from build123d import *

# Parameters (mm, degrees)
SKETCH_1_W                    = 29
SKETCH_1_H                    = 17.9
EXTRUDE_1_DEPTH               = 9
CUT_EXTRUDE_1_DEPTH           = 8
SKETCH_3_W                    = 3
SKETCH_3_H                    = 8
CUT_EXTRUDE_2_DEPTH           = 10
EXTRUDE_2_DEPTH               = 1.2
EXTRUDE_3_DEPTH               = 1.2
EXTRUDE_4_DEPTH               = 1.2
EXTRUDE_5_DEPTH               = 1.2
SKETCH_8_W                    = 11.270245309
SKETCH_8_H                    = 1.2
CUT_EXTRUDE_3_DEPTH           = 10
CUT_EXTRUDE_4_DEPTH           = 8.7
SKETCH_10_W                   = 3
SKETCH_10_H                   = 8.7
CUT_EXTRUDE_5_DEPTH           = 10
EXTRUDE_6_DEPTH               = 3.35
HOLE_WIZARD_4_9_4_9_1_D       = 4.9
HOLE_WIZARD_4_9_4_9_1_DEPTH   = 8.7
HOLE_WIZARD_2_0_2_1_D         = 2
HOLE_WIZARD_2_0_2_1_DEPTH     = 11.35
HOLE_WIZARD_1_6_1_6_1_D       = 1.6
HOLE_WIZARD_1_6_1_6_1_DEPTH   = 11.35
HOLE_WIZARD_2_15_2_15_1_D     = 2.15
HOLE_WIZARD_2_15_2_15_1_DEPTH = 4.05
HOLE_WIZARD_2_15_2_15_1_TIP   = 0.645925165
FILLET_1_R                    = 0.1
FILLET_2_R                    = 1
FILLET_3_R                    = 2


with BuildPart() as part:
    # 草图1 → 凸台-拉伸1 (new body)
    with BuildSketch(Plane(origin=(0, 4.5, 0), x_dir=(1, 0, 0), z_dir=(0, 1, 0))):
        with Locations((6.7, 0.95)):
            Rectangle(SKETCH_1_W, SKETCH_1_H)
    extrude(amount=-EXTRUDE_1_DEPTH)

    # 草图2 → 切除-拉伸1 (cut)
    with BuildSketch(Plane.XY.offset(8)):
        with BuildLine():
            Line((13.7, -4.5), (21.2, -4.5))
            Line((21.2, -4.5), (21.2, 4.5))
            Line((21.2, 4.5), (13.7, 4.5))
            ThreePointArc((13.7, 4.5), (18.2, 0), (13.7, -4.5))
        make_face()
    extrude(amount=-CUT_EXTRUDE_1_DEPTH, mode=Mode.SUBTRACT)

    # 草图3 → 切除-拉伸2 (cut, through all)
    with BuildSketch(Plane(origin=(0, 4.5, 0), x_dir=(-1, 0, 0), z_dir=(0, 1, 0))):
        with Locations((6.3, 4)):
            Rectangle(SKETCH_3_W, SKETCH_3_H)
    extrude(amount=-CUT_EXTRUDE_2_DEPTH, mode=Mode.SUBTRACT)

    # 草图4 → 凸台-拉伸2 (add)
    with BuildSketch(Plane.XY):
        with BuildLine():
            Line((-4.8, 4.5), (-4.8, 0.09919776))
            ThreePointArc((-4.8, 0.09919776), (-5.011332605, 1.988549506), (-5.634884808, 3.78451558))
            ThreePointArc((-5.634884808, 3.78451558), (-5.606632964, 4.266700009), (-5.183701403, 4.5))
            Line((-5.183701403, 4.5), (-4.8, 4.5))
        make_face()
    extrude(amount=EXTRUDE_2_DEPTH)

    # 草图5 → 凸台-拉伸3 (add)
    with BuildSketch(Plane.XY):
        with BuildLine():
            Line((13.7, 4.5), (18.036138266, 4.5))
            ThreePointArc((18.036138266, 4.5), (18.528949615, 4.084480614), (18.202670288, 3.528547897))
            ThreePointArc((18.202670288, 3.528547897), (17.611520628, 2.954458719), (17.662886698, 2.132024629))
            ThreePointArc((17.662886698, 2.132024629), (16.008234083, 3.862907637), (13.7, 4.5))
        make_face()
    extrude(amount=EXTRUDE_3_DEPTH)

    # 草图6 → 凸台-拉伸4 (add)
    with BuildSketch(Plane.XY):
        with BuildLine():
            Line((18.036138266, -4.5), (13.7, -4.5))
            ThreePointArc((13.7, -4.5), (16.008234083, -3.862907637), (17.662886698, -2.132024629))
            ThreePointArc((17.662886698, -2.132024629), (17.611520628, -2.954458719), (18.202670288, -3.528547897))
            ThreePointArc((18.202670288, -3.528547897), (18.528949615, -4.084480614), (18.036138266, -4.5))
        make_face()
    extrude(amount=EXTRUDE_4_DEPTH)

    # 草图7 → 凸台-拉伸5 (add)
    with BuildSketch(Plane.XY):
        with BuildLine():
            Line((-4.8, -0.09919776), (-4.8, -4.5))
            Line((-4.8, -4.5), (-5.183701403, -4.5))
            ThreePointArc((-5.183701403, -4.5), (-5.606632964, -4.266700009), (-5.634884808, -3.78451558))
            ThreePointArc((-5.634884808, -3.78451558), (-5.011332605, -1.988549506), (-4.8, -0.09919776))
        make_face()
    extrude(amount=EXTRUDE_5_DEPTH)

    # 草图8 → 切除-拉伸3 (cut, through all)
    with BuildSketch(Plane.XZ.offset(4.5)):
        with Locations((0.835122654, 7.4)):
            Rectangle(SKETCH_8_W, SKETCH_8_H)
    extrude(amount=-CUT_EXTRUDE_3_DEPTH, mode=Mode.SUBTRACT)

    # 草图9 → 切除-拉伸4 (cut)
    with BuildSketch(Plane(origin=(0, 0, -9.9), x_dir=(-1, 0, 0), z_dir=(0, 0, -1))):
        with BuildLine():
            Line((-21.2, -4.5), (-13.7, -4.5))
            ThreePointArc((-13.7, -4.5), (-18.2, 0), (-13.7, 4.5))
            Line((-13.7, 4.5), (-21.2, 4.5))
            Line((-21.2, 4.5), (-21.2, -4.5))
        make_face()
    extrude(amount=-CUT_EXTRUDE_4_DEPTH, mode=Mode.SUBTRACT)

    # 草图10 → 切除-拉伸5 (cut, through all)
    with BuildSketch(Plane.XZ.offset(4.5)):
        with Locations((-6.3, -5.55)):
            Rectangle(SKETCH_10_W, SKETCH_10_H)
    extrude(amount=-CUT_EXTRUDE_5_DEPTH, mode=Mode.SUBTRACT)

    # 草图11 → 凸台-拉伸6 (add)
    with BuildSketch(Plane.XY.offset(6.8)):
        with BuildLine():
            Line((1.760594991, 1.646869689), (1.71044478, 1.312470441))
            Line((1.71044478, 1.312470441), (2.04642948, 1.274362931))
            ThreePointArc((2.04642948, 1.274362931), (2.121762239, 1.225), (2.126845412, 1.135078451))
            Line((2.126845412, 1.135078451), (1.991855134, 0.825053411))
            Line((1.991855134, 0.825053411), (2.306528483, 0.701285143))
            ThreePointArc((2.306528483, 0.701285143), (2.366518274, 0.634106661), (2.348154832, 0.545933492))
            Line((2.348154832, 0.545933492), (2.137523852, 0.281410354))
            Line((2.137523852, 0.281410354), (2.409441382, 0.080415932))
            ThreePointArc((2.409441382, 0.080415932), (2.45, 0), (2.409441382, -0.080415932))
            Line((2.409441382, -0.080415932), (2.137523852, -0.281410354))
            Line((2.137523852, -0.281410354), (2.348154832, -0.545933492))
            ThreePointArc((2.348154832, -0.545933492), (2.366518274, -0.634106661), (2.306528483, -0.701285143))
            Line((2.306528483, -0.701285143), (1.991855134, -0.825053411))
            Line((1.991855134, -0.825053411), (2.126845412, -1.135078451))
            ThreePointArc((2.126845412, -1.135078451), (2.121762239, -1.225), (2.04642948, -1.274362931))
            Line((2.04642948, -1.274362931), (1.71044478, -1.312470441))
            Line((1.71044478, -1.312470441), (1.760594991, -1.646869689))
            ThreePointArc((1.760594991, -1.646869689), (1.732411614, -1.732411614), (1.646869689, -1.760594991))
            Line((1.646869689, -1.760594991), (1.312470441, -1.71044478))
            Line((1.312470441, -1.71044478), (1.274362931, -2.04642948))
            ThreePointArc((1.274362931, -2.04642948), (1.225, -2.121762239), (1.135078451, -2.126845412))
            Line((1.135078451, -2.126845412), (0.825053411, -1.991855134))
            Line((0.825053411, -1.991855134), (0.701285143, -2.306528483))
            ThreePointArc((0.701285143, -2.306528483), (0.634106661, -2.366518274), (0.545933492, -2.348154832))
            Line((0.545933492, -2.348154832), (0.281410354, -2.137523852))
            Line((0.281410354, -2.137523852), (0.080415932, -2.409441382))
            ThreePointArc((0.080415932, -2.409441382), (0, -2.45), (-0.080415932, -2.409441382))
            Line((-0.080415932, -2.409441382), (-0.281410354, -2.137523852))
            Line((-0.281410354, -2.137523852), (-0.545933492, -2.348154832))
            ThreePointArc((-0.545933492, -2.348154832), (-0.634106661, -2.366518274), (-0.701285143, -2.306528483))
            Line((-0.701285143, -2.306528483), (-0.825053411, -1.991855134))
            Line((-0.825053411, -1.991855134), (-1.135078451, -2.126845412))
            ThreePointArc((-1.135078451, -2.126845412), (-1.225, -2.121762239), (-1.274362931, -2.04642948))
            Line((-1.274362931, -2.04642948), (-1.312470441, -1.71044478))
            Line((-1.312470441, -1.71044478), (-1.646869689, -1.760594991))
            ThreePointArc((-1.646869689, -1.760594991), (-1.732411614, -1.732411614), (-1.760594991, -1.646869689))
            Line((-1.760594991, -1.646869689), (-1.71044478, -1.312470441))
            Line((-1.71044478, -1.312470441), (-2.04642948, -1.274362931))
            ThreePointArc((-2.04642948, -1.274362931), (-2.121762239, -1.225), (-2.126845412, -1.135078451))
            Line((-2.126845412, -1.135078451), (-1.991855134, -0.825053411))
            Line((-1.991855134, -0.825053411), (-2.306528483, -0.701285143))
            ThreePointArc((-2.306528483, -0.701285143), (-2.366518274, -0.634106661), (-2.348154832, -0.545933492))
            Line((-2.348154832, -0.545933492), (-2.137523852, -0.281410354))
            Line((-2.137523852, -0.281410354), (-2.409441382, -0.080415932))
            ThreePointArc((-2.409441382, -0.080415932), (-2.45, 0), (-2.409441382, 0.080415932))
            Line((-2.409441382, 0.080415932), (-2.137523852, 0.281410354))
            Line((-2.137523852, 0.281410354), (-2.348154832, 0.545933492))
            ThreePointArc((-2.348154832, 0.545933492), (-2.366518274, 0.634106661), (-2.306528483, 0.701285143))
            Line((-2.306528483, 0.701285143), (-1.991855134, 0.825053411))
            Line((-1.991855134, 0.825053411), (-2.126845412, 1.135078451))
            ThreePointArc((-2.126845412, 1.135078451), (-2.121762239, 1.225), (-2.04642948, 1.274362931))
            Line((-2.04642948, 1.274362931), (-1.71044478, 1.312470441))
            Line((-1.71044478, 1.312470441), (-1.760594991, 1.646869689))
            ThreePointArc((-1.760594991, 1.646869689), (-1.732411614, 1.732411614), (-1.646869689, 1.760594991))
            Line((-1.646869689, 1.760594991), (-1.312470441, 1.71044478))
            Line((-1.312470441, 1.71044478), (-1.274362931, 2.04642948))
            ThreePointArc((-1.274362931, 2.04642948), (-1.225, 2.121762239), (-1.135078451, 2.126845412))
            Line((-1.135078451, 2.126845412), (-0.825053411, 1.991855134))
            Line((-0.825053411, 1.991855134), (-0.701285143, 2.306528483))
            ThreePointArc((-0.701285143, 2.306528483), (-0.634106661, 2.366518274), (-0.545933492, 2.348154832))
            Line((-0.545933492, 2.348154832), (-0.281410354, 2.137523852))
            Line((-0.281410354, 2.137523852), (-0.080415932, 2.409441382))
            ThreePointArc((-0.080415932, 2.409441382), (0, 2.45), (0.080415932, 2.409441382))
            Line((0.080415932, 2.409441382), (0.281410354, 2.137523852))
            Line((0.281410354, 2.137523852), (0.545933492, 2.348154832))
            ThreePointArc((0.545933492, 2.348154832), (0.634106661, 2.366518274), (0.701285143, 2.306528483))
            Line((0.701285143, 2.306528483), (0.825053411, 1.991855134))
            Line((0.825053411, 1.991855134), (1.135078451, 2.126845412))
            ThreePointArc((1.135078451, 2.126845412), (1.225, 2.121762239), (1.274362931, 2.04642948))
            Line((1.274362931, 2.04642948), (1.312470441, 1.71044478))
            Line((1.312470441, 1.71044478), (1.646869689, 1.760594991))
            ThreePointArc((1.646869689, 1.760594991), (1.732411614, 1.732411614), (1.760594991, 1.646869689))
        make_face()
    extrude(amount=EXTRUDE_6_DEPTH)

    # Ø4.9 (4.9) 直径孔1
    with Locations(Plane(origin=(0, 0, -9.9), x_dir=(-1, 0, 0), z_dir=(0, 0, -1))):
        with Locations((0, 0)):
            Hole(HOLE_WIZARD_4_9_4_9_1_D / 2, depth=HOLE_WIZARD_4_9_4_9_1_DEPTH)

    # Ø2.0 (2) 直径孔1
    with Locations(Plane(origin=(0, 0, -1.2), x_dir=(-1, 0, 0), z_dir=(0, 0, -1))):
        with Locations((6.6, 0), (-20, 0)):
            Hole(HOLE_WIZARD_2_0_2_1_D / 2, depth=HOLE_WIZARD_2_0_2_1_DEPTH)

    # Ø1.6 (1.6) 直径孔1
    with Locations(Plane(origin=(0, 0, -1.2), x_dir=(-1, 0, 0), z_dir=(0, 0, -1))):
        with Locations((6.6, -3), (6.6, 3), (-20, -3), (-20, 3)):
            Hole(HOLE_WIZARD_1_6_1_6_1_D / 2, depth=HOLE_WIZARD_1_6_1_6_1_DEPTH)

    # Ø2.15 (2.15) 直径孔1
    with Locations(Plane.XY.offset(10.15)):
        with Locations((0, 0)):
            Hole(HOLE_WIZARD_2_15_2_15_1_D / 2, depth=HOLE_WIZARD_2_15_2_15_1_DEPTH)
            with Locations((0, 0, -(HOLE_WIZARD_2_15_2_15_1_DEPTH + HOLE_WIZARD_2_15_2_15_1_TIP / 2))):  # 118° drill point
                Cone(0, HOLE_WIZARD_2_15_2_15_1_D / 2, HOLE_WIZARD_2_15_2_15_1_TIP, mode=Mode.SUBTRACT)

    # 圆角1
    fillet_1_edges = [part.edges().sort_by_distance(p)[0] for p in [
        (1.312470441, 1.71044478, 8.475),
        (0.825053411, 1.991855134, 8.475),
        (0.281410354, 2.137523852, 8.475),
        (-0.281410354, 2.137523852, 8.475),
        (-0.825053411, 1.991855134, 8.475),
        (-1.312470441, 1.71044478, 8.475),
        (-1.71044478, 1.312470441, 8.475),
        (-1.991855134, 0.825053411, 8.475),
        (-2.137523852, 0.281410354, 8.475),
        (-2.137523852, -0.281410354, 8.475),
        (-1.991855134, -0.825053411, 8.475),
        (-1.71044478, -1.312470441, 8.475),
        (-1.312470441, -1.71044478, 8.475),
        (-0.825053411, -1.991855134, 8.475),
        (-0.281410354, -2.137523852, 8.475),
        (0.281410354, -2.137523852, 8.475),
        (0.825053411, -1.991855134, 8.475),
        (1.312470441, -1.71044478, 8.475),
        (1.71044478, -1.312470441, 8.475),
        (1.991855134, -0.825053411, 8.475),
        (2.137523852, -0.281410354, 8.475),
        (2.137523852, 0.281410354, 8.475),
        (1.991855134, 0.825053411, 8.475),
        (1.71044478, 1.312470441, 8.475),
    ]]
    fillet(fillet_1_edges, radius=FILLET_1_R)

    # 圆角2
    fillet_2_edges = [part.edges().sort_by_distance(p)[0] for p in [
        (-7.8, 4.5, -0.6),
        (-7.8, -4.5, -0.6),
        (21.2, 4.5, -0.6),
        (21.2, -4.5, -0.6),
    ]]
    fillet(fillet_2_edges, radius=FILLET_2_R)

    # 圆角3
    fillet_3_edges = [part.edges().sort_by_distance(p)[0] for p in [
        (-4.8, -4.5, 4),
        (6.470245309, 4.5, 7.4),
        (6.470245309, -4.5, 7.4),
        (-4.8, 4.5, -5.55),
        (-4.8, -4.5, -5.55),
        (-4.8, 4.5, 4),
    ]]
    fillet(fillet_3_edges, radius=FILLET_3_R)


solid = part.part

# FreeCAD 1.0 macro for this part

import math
import FreeCAD as App
import Part
import Sketcher

V = App.Vector
Q = App.Units.Quantity


def edges_at(feature, points):
    """Names of the edges that pass closest to the given points."""
    edges = feature.Shape.Edges
    near = lambda p: min(range(len(edges)), key=lambda i: edges[i].distToShape(Part.Vertex(*p))[0])
    return sorted({f"Edge{near(p) + 1}" for p in points})


def add_polygon(sketch, points):
    """Adds a closed chain of lines whose ends are joined by coincident constraints."""
    first, n = sketch.GeometryCount, len(points)
    for a, b in zip(points, points[1:] + points[:1]):
        sketch.addGeometry(Part.LineSegment(App.Vector(*a, 0), App.Vector(*b, 0)), False)
    for i in range(n):
        sketch.addConstraint(Sketcher.Constraint("Coincident", first + i, 2, first + (i + 1) % n, 1))

doc = App.newDocument("Part")
body = doc.addObject("PartDesign::Body", "Body")

# Sketch on XZ plane
sketch1 = body.newObject("Sketcher::SketchObject", "Sketch")
sketch1.AttachmentSupport = (doc.getObject("XZ_Plane"), [""])
sketch1.MapMode = "FlatFace"
sketch1.AttachmentOffset = App.Placement(V(0, 0, -4.5), App.Rotation())
add_polygon(sketch1, [(-8, -10), (-8, 8), (21, 8), (21, -10)])  # lines 0-3
sketch1.addConstraint([
    Sketcher.Constraint("Vertical", 0),
    Sketcher.Constraint("Horizontal", 1),
    Sketcher.Constraint("Vertical", 2),
    Sketcher.Constraint("Horizontal", 3),
    Sketcher.Constraint("DistanceX", 1, 1, 1, 2, Q("29 mm")),
    Sketcher.Constraint("DistanceY", 0, 1, 0, 2, Q("17.9 mm")),
    Sketcher.Constraint("DistanceY", -1, 1, 0, 2, Q("8 mm")),
    Sketcher.Constraint("DistanceX", 0, 2, -1, 1, Q("7.8 mm")),
])
pad1 = body.newObject("PartDesign::Pad", "Pad")
pad1.Profile = sketch1
pad1.Length = 9

# Sketch on XY plane
sketch2 = body.newObject("Sketcher::SketchObject", "Sketch001")
sketch2.AttachmentSupport = (doc.getObject("XY_Plane"), [""])
sketch2.MapMode = "FlatFace"
sketch2.AttachmentOffset = App.Placement(V(0, 0, 8), App.Rotation())
sketch2.addGeometry([
    Part.LineSegment(V(13.7, -4.5, 0), V(21.2, -4.5, 0)),
    Part.LineSegment(V(21.2, -4.5, 0), V(21.2, 4.5, 0)),
    Part.LineSegment(V(21.2, 4.5, 0), V(13.7, 4.5, 0)),
    Part.ArcOfCircle(Part.Circle(V(13.7, 0, 0), V(0, 0, 1), 4.5), math.radians(-90), math.radians(90)),
], False)
sketch2.addConstraint([
    Sketcher.Constraint("Coincident", 0, 2, 1, 1),
    Sketcher.Constraint("Coincident", 1, 2, 2, 1),
    Sketcher.Constraint("Tangent", 2, 2, 3, 2),
    Sketcher.Constraint("Tangent", 3, 1, 0, 1),
    Sketcher.Constraint("Horizontal", 0),
    Sketcher.Constraint("Vertical", 1),
    Sketcher.Constraint("Horizontal", 2),
    Sketcher.Constraint("PointOnObject", 3, 3, -1),
    Sketcher.Constraint("Radius", 3, Q("4.5 mm")),
    Sketcher.Constraint("DistanceX", 0, 1, 0, 2, Q("7.5 mm")),
    Sketcher.Constraint("DistanceX", -1, 1, 3, 3, Q("13.7 mm")),
])
pocket1 = body.newObject("PartDesign::Pocket", "Pocket")
pocket1.Profile = sketch2
pocket1.Length = 8

# Sketch on XZ plane
sketch3 = body.newObject("Sketcher::SketchObject", "Sketch002")
sketch3.AttachmentSupport = (doc.getObject("XZ_Plane"), [""])
sketch3.MapMode = "FlatFace"
sketch3.AttachmentOffset = App.Placement(V(0, 0, -4.5), App.Rotation())
add_polygon(sketch3, [(-4.8, 8), (-4.8, 0), (-7.8, 0), (-7.8, 8)])  # lines 0-3
sketch3.addConstraint([
    Sketcher.Constraint("Vertical", 0),
    Sketcher.Constraint("Horizontal", 1),
    Sketcher.Constraint("Vertical", 2),
    Sketcher.Constraint("Horizontal", 3),
    Sketcher.Constraint("PointOnObject", 0, 2, -1),
    Sketcher.Constraint("DistanceX", 1, 2, 1, 1, Q("3 mm")),
    Sketcher.Constraint("DistanceY", 0, 2, 0, 1, Q("8 mm")),
    Sketcher.Constraint("DistanceX", 0, 2, -1, 1, Q("4.8 mm")),
])
pocket2 = body.newObject("PartDesign::Pocket", "Pocket001")
pocket2.Profile = sketch3
pocket2.Type = "ThroughAll"
pocket2.Reversed = True

# Sketch on XY plane
sketch4 = body.newObject("Sketcher::SketchObject", "Sketch003")
sketch4.AttachmentSupport = (doc.getObject("XY_Plane"), [""])
sketch4.MapMode = "FlatFace"
sketch4.addGeometry([
    Part.LineSegment(V(-4.8, 0.1, 0), V(-4.8, 4.5, 0)),
    Part.LineSegment(V(-4.8, 4.5, 0), V(-5.18, 4.5, 0)),
    Part.ArcOfCircle(Part.Circle(V(-5.18, 4, 0), V(0, 0, 1), 0.5), math.radians(90), math.radians(206)),
    Part.ArcOfCircle(Part.Circle(V(-13.35, 0.1, 0), V(0, 0, 1), 8.55), math.radians(0), math.radians(26)),
], False)
sketch4.addConstraint([
    Sketcher.Constraint("Coincident", 0, 2, 1, 1),
    Sketcher.Constraint("Tangent", 1, 2, 2, 1),
    Sketcher.Constraint("Tangent", 2, 2, 3, 2),
    Sketcher.Constraint("Tangent", 3, 1, 0, 1),
    Sketcher.Constraint("Vertical", 0),
    Sketcher.Constraint("Horizontal", 1),
    Sketcher.Constraint("Radius", 2, Q("0.5 mm")),
    Sketcher.Constraint("DistanceY", -1, 1, 2, 3, Q("4 mm")),
    Sketcher.Constraint("DistanceX", 0, 2, -1, 1, Q("4.8 mm")),
    Sketcher.Constraint("Radius", 3, Q("8.55124 mm")),
    Sketcher.Constraint("DistanceX", 1, 2, 1, 1, Q("0.383701 mm")),
])
pad2 = body.newObject("PartDesign::Pad", "Pad001")
pad2.Profile = sketch4
pad2.Length = 1.2

# Sketch on XY plane
sketch5 = body.newObject("Sketcher::SketchObject", "Sketch004")
sketch5.AttachmentSupport = (doc.getObject("XY_Plane"), [""])
sketch5.MapMode = "FlatFace"
sketch5.addGeometry([
    Part.LineSegment(V(18, 4.5, 0), V(13.7, 4.5, 0)),
    Part.ArcOfCircle(Part.Circle(V(13.7, 0, 0), V(0, 0, 1), 4.5), math.radians(28), math.radians(90)),
    Part.ArcOfCircle(Part.Circle(V(18.5, 2.6, 0), V(0, 0, 1), 1), math.radians(109), math.radians(208)),
    Part.ArcOfCircle(Part.Circle(V(18, 4, 0), V(0, 0, 1), 0.5), math.radians(-71), math.radians(90)),
], False)
sketch5.addConstraint([
    Sketcher.Constraint("Tangent", 0, 2, 1, 2),
    Sketcher.Constraint("Tangent", 1, 1, 2, 2),
    Sketcher.Constraint("Tangent", 2, 1, 3, 1),
    Sketcher.Constraint("Tangent", 3, 2, 0, 1),
    Sketcher.Constraint("Horizontal", 0),
    Sketcher.Constraint("PointOnObject", 1, 3, -1),
    Sketcher.Constraint("Radius", 1, Q("4.5 mm")),
    Sketcher.Constraint("Radius", 3, Q("0.5 mm")),
    Sketcher.Constraint("DistanceX", -1, 1, 1, 3, Q("13.7 mm")),
    Sketcher.Constraint("Radius", 2, Q("0.985767 mm")),
    Sketcher.Constraint("DistanceX", 0, 2, 0, 1, Q("4.336138 mm")),
])
pad3 = body.newObject("PartDesign::Pad", "Pad002")
pad3.Profile = sketch5
pad3.Length = 1.2

# Sketch on XY plane
sketch6 = body.newObject("Sketcher::SketchObject", "Sketch005")
sketch6.AttachmentSupport = (doc.getObject("XY_Plane"), [""])
sketch6.MapMode = "FlatFace"
sketch6.addGeometry([
    Part.LineSegment(V(13.7, -4.5, 0), V(18, -4.5, 0)),
    Part.ArcOfCircle(Part.Circle(V(18, -4, 0), V(0, 0, 1), 0.5), math.radians(-90), math.radians(71)),
    Part.ArcOfCircle(Part.Circle(V(18.5, -2.6, 0), V(0, 0, 1), 1), math.radians(152), math.radians(251)),
    Part.ArcOfCircle(Part.Circle(V(13.7, 0, 0), V(0, 0, 1), 4.5), math.radians(-90), math.radians(-28)),
], False)
sketch6.addConstraint([
    Sketcher.Constraint("Tangent", 0, 2, 1, 1),
    Sketcher.Constraint("Tangent", 1, 2, 2, 2),
    Sketcher.Constraint("Tangent", 2, 1, 3, 2),
    Sketcher.Constraint("Tangent", 3, 1, 0, 1),
    Sketcher.Constraint("Horizontal", 0),
    Sketcher.Constraint("PointOnObject", 3, 3, -1),
    Sketcher.Constraint("Radius", 1, Q("0.5 mm")),
    Sketcher.Constraint("Radius", 3, Q("4.5 mm")),
    Sketcher.Constraint("DistanceX", -1, 1, 3, 3, Q("13.7 mm")),
    Sketcher.Constraint("Radius", 2, Q("0.985767 mm")),
    Sketcher.Constraint("DistanceX", 0, 1, 0, 2, Q("4.336138 mm")),
])
pad4 = body.newObject("PartDesign::Pad", "Pad003")
pad4.Profile = sketch6
pad4.Length = 1.2

# Sketch on XY plane
sketch7 = body.newObject("Sketcher::SketchObject", "Sketch006")
sketch7.AttachmentSupport = (doc.getObject("XY_Plane"), [""])
sketch7.MapMode = "FlatFace"
sketch7.addGeometry([
    Part.LineSegment(V(-4.8, -4.5, 0), V(-4.8, -0.1, 0)),
    Part.ArcOfCircle(Part.Circle(V(-13.35, -0.1, 0), V(0, 0, 1), 8.55), math.radians(-26), math.radians(0)),
    Part.ArcOfCircle(Part.Circle(V(-5.18, -4, 0), V(0, 0, 1), 0.5), math.radians(154), math.radians(270)),
    Part.LineSegment(V(-5.18, -4.5, 0), V(-4.8, -4.5, 0)),
], False)
sketch7.addConstraint([
    Sketcher.Constraint("Tangent", 0, 2, 1, 2),
    Sketcher.Constraint("Tangent", 1, 1, 2, 1),
    Sketcher.Constraint("Tangent", 2, 2, 3, 1),
    Sketcher.Constraint("Coincident", 3, 2, 0, 1),
    Sketcher.Constraint("Vertical", 0),
    Sketcher.Constraint("Horizontal", 3),
    Sketcher.Constraint("Radius", 2, Q("0.5 mm")),
    Sketcher.Constraint("DistanceY", 2, 3, -1, 1, Q("4 mm")),
    Sketcher.Constraint("DistanceX", 0, 2, -1, 1, Q("4.8 mm")),
    Sketcher.Constraint("Radius", 1, Q("8.55124 mm")),
    Sketcher.Constraint("DistanceX", 3, 1, 3, 2, Q("0.383701 mm")),
])
pad5 = body.newObject("PartDesign::Pad", "Pad004")
pad5.Profile = sketch7
pad5.Length = 1.2

# Sketch on XZ plane
sketch8 = body.newObject("Sketcher::SketchObject", "Sketch007")
sketch8.AttachmentSupport = (doc.getObject("XZ_Plane"), [""])
sketch8.MapMode = "FlatFace"
sketch8.AttachmentOffset = App.Placement(V(0, 0, 4.5), App.Rotation())
add_polygon(sketch8, [(-4.8, 8), (-4.8, 6.8), (6.5, 6.8), (6.5, 8)])  # lines 0-3
sketch8.addConstraint([
    Sketcher.Constraint("Vertical", 0),
    Sketcher.Constraint("Horizontal", 1),
    Sketcher.Constraint("Vertical", 2),
    Sketcher.Constraint("Horizontal", 3),
    Sketcher.Constraint("DistanceY", 0, 2, 0, 1, Q("1.2 mm")),
    Sketcher.Constraint("DistanceY", -1, 1, 2, 2, Q("8 mm")),
    Sketcher.Constraint("DistanceX", 0, 2, -1, 1, Q("4.8 mm")),
    Sketcher.Constraint("DistanceX", 1, 1, 1, 2, Q("11.270245 mm")),
])
pocket3 = body.newObject("PartDesign::Pocket", "Pocket002")
pocket3.Profile = sketch8
pocket3.Type = "ThroughAll"

# Sketch on XY plane
sketch9 = body.newObject("Sketcher::SketchObject", "Sketch008")
sketch9.AttachmentSupport = (doc.getObject("XY_Plane"), [""])
sketch9.MapMode = "FlatFace"
sketch9.AttachmentOffset = App.Placement(V(0, 0, -9.9), App.Rotation())
sketch9.addGeometry([
    Part.LineSegment(V(21.2, -4.5, 0), V(13.7, -4.5, 0)),
    Part.ArcOfCircle(Part.Circle(V(13.7, 0, 0), V(0, 0, 1), 4.5), math.radians(-90), math.radians(90)),
    Part.LineSegment(V(13.7, 4.5, 0), V(21.2, 4.5, 0)),
    Part.LineSegment(V(21.2, 4.5, 0), V(21.2, -4.5, 0)),
], False)
sketch9.addConstraint([
    Sketcher.Constraint("Tangent", 0, 2, 1, 1),
    Sketcher.Constraint("Tangent", 1, 2, 2, 1),
    Sketcher.Constraint("Coincident", 2, 2, 3, 1),
    Sketcher.Constraint("Coincident", 3, 2, 0, 1),
    Sketcher.Constraint("Horizontal", 0),
    Sketcher.Constraint("Horizontal", 2),
    Sketcher.Constraint("Vertical", 3),
    Sketcher.Constraint("PointOnObject", 1, 3, -1),
    Sketcher.Constraint("Radius", 1, Q("4.5 mm")),
    Sketcher.Constraint("DistanceX", 0, 2, 0, 1, Q("7.5 mm")),
    Sketcher.Constraint("DistanceX", -1, 1, 1, 3, Q("13.7 mm")),
])
pocket4 = body.newObject("PartDesign::Pocket", "Pocket003")
pocket4.Profile = sketch9
pocket4.Length = 8.7
pocket4.Reversed = True

# Sketch on XZ plane
sketch10 = body.newObject("Sketcher::SketchObject", "Sketch009")
sketch10.AttachmentSupport = (doc.getObject("XZ_Plane"), [""])
sketch10.MapMode = "FlatFace"
sketch10.AttachmentOffset = App.Placement(V(0, 0, 4.5), App.Rotation())
add_polygon(sketch10, [(-7.8, -1.2), (-7.8, -9.9), (-4.8, -9.9), (-4.8, -1.2)])  # lines 0-3
sketch10.addConstraint([
    Sketcher.Constraint("Vertical", 0),
    Sketcher.Constraint("Horizontal", 1),
    Sketcher.Constraint("Vertical", 2),
    Sketcher.Constraint("Horizontal", 3),
    Sketcher.Constraint("DistanceX", 1, 1, 1, 2, Q("3 mm")),
    Sketcher.Constraint("DistanceY", 0, 2, 0, 1, Q("8.7 mm")),
    Sketcher.Constraint("DistanceX", 0, 2, -1, 1, Q("7.8 mm")),
    Sketcher.Constraint("DistanceY", 0, 2, -1, 1, Q("9.9 mm")),
])
pocket5 = body.newObject("PartDesign::Pocket", "Pocket004")
pocket5.Profile = sketch10
pocket5.Type = "ThroughAll"

# Sketch on XY plane
sketch11 = body.newObject("Sketcher::SketchObject", "Sketch010")
sketch11.AttachmentSupport = (doc.getObject("XY_Plane"), [""])
sketch11.MapMode = "FlatFace"
sketch11.AttachmentOffset = App.Placement(V(0, 0, 6.8), App.Rotation())
sketch11.addGeometry([
    Part.LineSegment(V(1.71, 1.31, 0), V(1.76, 1.65, 0)),  # 0
    Part.ArcOfCircle(Part.Circle(V(1.66, 1.66, 0), V(0, 0, 1), 0.1), math.radians(-9), math.radians(99)),  # 1
    Part.LineSegment(V(1.65, 1.76, 0), V(1.31, 1.71, 0)),  # 2
    Part.LineSegment(V(1.31, 1.71, 0), V(1.27, 2.05, 0)),  # 3
    Part.ArcOfCircle(Part.Circle(V(1.17, 2.04, 0), V(0, 0, 1), 0.1), math.radians(6), math.radians(114)),  # 4
    Part.LineSegment(V(1.14, 2.13, 0), V(0.83, 1.99, 0)),  # 5
    Part.LineSegment(V(0.83, 1.99, 0), V(0.7, 2.31, 0)),  # 6
    Part.ArcOfCircle(Part.Circle(V(0.61, 2.27, 0), V(0, 0, 1), 0.1), math.radians(21), math.radians(129)),  # 7
    Part.LineSegment(V(0.55, 2.35, 0), V(0.28, 2.14, 0)),  # 8
    Part.LineSegment(V(0.28, 2.14, 0), V(0.08, 2.41, 0)),  # 9
    Part.ArcOfCircle(Part.Circle(V(0, 2.35, 0), V(0, 0, 1), 0.1), math.radians(36), math.radians(144)),  # 10
    Part.LineSegment(V(-0.08, 2.41, 0), V(-0.28, 2.14, 0)),  # 11
    Part.LineSegment(V(-0.28, 2.14, 0), V(-0.55, 2.35, 0)),  # 12
    Part.ArcOfCircle(Part.Circle(V(-0.61, 2.27, 0), V(0, 0, 1), 0.1), math.radians(51), math.radians(159)),  # 13
    Part.LineSegment(V(-0.7, 2.31, 0), V(-0.83, 1.99, 0)),  # 14
    Part.LineSegment(V(-0.83, 1.99, 0), V(-1.14, 2.13, 0)),  # 15
    Part.ArcOfCircle(Part.Circle(V(-1.17, 2.04, 0), V(0, 0, 1), 0.1), math.radians(66), math.radians(174)),  # 16
    Part.LineSegment(V(-1.27, 2.05, 0), V(-1.31, 1.71, 0)),  # 17
    Part.LineSegment(V(-1.31, 1.71, 0), V(-1.65, 1.76, 0)),  # 18
    Part.ArcOfCircle(Part.Circle(V(-1.66, 1.66, 0), V(0, 0, 1), 0.1), math.radians(81), math.radians(189)),  # 19
    Part.LineSegment(V(-1.76, 1.65, 0), V(-1.71, 1.31, 0)),  # 20
    Part.LineSegment(V(-1.71, 1.31, 0), V(-2.05, 1.27, 0)),  # 21
    Part.ArcOfCircle(Part.Circle(V(-2.04, 1.17, 0), V(0, 0, 1), 0.1), math.radians(96), math.radians(204)),  # 22
    Part.LineSegment(V(-2.13, 1.14, 0), V(-1.99, 0.83, 0)),  # 23
    Part.LineSegment(V(-1.99, 0.83, 0), V(-2.31, 0.7, 0)),  # 24
    Part.ArcOfCircle(Part.Circle(V(-2.27, 0.61, 0), V(0, 0, 1), 0.1), math.radians(111), math.radians(219)),  # 25
    Part.LineSegment(V(-2.35, 0.55, 0), V(-2.14, 0.28, 0)),  # 26
    Part.LineSegment(V(-2.14, 0.28, 0), V(-2.41, 0.08, 0)),  # 27
    Part.ArcOfCircle(Part.Circle(V(-2.35, 0, 0), V(0, 0, 1), 0.1), math.radians(126), math.radians(234)),  # 28
    Part.LineSegment(V(-2.41, -0.08, 0), V(-2.14, -0.28, 0)),  # 29
    Part.LineSegment(V(-2.14, -0.28, 0), V(-2.35, -0.55, 0)),  # 30
    Part.ArcOfCircle(Part.Circle(V(-2.27, -0.61, 0), V(0, 0, 1), 0.1), math.radians(141), math.radians(249)),  # 31
    Part.LineSegment(V(-2.31, -0.7, 0), V(-1.99, -0.83, 0)),  # 32
    Part.LineSegment(V(-1.99, -0.83, 0), V(-2.13, -1.14, 0)),  # 33
    Part.ArcOfCircle(Part.Circle(V(-2.04, -1.17, 0), V(0, 0, 1), 0.1), math.radians(156), math.radians(264)),  # 34
    Part.LineSegment(V(-2.05, -1.27, 0), V(-1.71, -1.31, 0)),  # 35
    Part.LineSegment(V(-1.71, -1.31, 0), V(-1.76, -1.65, 0)),  # 36
    Part.ArcOfCircle(Part.Circle(V(-1.66, -1.66, 0), V(0, 0, 1), 0.1), math.radians(171), math.radians(279)),  # 37
    Part.LineSegment(V(-1.65, -1.76, 0), V(-1.31, -1.71, 0)),  # 38
    Part.LineSegment(V(-1.31, -1.71, 0), V(-1.27, -2.05, 0)),  # 39
    Part.ArcOfCircle(Part.Circle(V(-1.17, -2.04, 0), V(0, 0, 1), 0.1), math.radians(-174), math.radians(-66)),  # 40
    Part.LineSegment(V(-1.14, -2.13, 0), V(-0.83, -1.99, 0)),  # 41
    Part.LineSegment(V(-0.83, -1.99, 0), V(-0.7, -2.31, 0)),  # 42
    Part.ArcOfCircle(Part.Circle(V(-0.61, -2.27, 0), V(0, 0, 1), 0.1), math.radians(-159), math.radians(-51)),  # 43
    Part.LineSegment(V(-0.55, -2.35, 0), V(-0.28, -2.14, 0)),  # 44
    Part.LineSegment(V(-0.28, -2.14, 0), V(-0.08, -2.41, 0)),  # 45
    Part.ArcOfCircle(Part.Circle(V(0, -2.35, 0), V(0, 0, 1), 0.1), math.radians(-144), math.radians(-36)),  # 46
    Part.LineSegment(V(0.08, -2.41, 0), V(0.28, -2.14, 0)),  # 47
    Part.LineSegment(V(0.28, -2.14, 0), V(0.55, -2.35, 0)),  # 48
    Part.ArcOfCircle(Part.Circle(V(0.61, -2.27, 0), V(0, 0, 1), 0.1), math.radians(-129), math.radians(-21)),  # 49
    Part.LineSegment(V(0.7, -2.31, 0), V(0.83, -1.99, 0)),  # 50
    Part.LineSegment(V(0.83, -1.99, 0), V(1.14, -2.13, 0)),  # 51
    Part.ArcOfCircle(Part.Circle(V(1.17, -2.04, 0), V(0, 0, 1), 0.1), math.radians(-114), math.radians(-6)),  # 52
    Part.LineSegment(V(1.27, -2.05, 0), V(1.31, -1.71, 0)),  # 53
    Part.LineSegment(V(1.31, -1.71, 0), V(1.65, -1.76, 0)),  # 54
    Part.ArcOfCircle(Part.Circle(V(1.66, -1.66, 0), V(0, 0, 1), 0.1), math.radians(-99), math.radians(9)),  # 55
    Part.LineSegment(V(1.76, -1.65, 0), V(1.71, -1.31, 0)),  # 56
    Part.LineSegment(V(1.71, -1.31, 0), V(2.05, -1.27, 0)),  # 57
    Part.ArcOfCircle(Part.Circle(V(2.04, -1.17, 0), V(0, 0, 1), 0.1), math.radians(-84), math.radians(24)),  # 58
    Part.LineSegment(V(2.13, -1.14, 0), V(1.99, -0.83, 0)),  # 59
    Part.LineSegment(V(1.99, -0.83, 0), V(2.31, -0.7, 0)),  # 60
    Part.ArcOfCircle(Part.Circle(V(2.27, -0.61, 0), V(0, 0, 1), 0.1), math.radians(-69), math.radians(39)),  # 61
    Part.LineSegment(V(2.35, -0.55, 0), V(2.14, -0.28, 0)),  # 62
    Part.LineSegment(V(2.14, -0.28, 0), V(2.41, -0.08, 0)),  # 63
    Part.ArcOfCircle(Part.Circle(V(2.35, 0, 0), V(0, 0, 1), 0.1), math.radians(-54), math.radians(54)),  # 64
    Part.LineSegment(V(2.41, 0.08, 0), V(2.14, 0.28, 0)),  # 65
    Part.LineSegment(V(2.14, 0.28, 0), V(2.35, 0.55, 0)),  # 66
    Part.ArcOfCircle(Part.Circle(V(2.27, 0.61, 0), V(0, 0, 1), 0.1), math.radians(-39), math.radians(69)),  # 67
    Part.LineSegment(V(2.31, 0.7, 0), V(1.99, 0.83, 0)),  # 68
    Part.LineSegment(V(1.99, 0.83, 0), V(2.13, 1.14, 0)),  # 69
    Part.ArcOfCircle(Part.Circle(V(2.04, 1.17, 0), V(0, 0, 1), 0.1), math.radians(-24), math.radians(84)),  # 70
    Part.LineSegment(V(2.05, 1.27, 0), V(1.71, 1.31, 0)),  # 71
], False)
sketch11.addConstraint([
    Sketcher.Constraint("Tangent", 0, 2, 1, 1),
    Sketcher.Constraint("Tangent", 1, 2, 2, 1),
    Sketcher.Constraint("Coincident", 2, 2, 3, 1),
    Sketcher.Constraint("Tangent", 3, 2, 4, 1),
    Sketcher.Constraint("Tangent", 4, 2, 5, 1),
    Sketcher.Constraint("Coincident", 5, 2, 6, 1),
    Sketcher.Constraint("Tangent", 6, 2, 7, 1),
    Sketcher.Constraint("Tangent", 7, 2, 8, 1),
    Sketcher.Constraint("Coincident", 8, 2, 9, 1),
    Sketcher.Constraint("Tangent", 9, 2, 10, 1),
    Sketcher.Constraint("Tangent", 10, 2, 11, 1),
    Sketcher.Constraint("Coincident", 11, 2, 12, 1),
    Sketcher.Constraint("Tangent", 12, 2, 13, 1),
    Sketcher.Constraint("Tangent", 13, 2, 14, 1),
    Sketcher.Constraint("Coincident", 14, 2, 15, 1),
    Sketcher.Constraint("Tangent", 15, 2, 16, 1),
    Sketcher.Constraint("Tangent", 16, 2, 17, 1),
    Sketcher.Constraint("Coincident", 17, 2, 18, 1),
    Sketcher.Constraint("Tangent", 18, 2, 19, 1),
    Sketcher.Constraint("Tangent", 19, 2, 20, 1),
    Sketcher.Constraint("Coincident", 20, 2, 21, 1),
    Sketcher.Constraint("Tangent", 21, 2, 22, 1),
    Sketcher.Constraint("Tangent", 22, 2, 23, 1),
    Sketcher.Constraint("Coincident", 23, 2, 24, 1),
    Sketcher.Constraint("Tangent", 24, 2, 25, 1),
    Sketcher.Constraint("Tangent", 25, 2, 26, 1),
    Sketcher.Constraint("Coincident", 26, 2, 27, 1),
    Sketcher.Constraint("Tangent", 27, 2, 28, 1),
    Sketcher.Constraint("Tangent", 28, 2, 29, 1),
    Sketcher.Constraint("Coincident", 29, 2, 30, 1),
    Sketcher.Constraint("Tangent", 30, 2, 31, 1),
    Sketcher.Constraint("Tangent", 31, 2, 32, 1),
    Sketcher.Constraint("Coincident", 32, 2, 33, 1),
    Sketcher.Constraint("Tangent", 33, 2, 34, 1),
    Sketcher.Constraint("Tangent", 34, 2, 35, 1),
    Sketcher.Constraint("Coincident", 35, 2, 36, 1),
    Sketcher.Constraint("Tangent", 36, 2, 37, 1),
    Sketcher.Constraint("Tangent", 37, 2, 38, 1),
    Sketcher.Constraint("Coincident", 38, 2, 39, 1),
    Sketcher.Constraint("Tangent", 39, 2, 40, 1),
    Sketcher.Constraint("Tangent", 40, 2, 41, 1),
    Sketcher.Constraint("Coincident", 41, 2, 42, 1),
    Sketcher.Constraint("Tangent", 42, 2, 43, 1),
    Sketcher.Constraint("Tangent", 43, 2, 44, 1),
    Sketcher.Constraint("Coincident", 44, 2, 45, 1),
    Sketcher.Constraint("Tangent", 45, 2, 46, 1),
    Sketcher.Constraint("Tangent", 46, 2, 47, 1),
    Sketcher.Constraint("Coincident", 47, 2, 48, 1),
    Sketcher.Constraint("Tangent", 48, 2, 49, 1),
    Sketcher.Constraint("Tangent", 49, 2, 50, 1),
    Sketcher.Constraint("Coincident", 50, 2, 51, 1),
    Sketcher.Constraint("Tangent", 51, 2, 52, 1),
    Sketcher.Constraint("Tangent", 52, 2, 53, 1),
    Sketcher.Constraint("Coincident", 53, 2, 54, 1),
    Sketcher.Constraint("Tangent", 54, 2, 55, 1),
    Sketcher.Constraint("Tangent", 55, 2, 56, 1),
    Sketcher.Constraint("Coincident", 56, 2, 57, 1),
    Sketcher.Constraint("Tangent", 57, 2, 58, 1),
    Sketcher.Constraint("Tangent", 58, 2, 59, 1),
    Sketcher.Constraint("Coincident", 59, 2, 60, 1),
    Sketcher.Constraint("Tangent", 60, 2, 61, 1),
    Sketcher.Constraint("Tangent", 61, 2, 62, 1),
    Sketcher.Constraint("Coincident", 62, 2, 63, 1),
    Sketcher.Constraint("Tangent", 63, 2, 64, 1),
    Sketcher.Constraint("Tangent", 64, 2, 65, 1),
    Sketcher.Constraint("Coincident", 65, 2, 66, 1),
    Sketcher.Constraint("Tangent", 66, 2, 67, 1),
    Sketcher.Constraint("Tangent", 67, 2, 68, 1),
    Sketcher.Constraint("Coincident", 68, 2, 69, 1),
    Sketcher.Constraint("Tangent", 69, 2, 70, 1),
    Sketcher.Constraint("Tangent", 70, 2, 71, 1),
    Sketcher.Constraint("Coincident", 71, 2, 0, 1),
    Sketcher.Constraint("Equal", 1, 4),
    Sketcher.Constraint("Equal", 4, 7),
    Sketcher.Constraint("Equal", 7, 10),
    Sketcher.Constraint("Equal", 10, 13),
    Sketcher.Constraint("Equal", 13, 16),
    Sketcher.Constraint("Equal", 16, 19),
    Sketcher.Constraint("Equal", 19, 22),
    Sketcher.Constraint("Equal", 22, 25),
    Sketcher.Constraint("Equal", 25, 28),
    Sketcher.Constraint("Equal", 28, 31),
    Sketcher.Constraint("Equal", 31, 34),
    Sketcher.Constraint("Equal", 34, 37),
    Sketcher.Constraint("Equal", 37, 40),
    Sketcher.Constraint("Equal", 40, 43),
    Sketcher.Constraint("Equal", 43, 46),
    Sketcher.Constraint("Equal", 46, 49),
    Sketcher.Constraint("Equal", 49, 52),
    Sketcher.Constraint("Equal", 52, 55),
    Sketcher.Constraint("Equal", 55, 58),
    Sketcher.Constraint("Equal", 58, 61),
    Sketcher.Constraint("Equal", 61, 64),
    Sketcher.Constraint("Equal", 64, 67),
    Sketcher.Constraint("Equal", 67, 70),
    Sketcher.Constraint("Symmetric", 1, 3, 37, 3, -1, 1),
    Sketcher.Constraint("Symmetric", 4, 3, 40, 3, -1, 1),
    Sketcher.Constraint("Symmetric", 7, 3, 43, 3, -1, 1),
    Sketcher.Constraint("Symmetric", 10, 3, 46, 3, -1, 1),
    Sketcher.Constraint("Symmetric", 13, 3, 49, 3, -1, 1),
    Sketcher.Constraint("Symmetric", 16, 3, 52, 3, -1, 1),
    Sketcher.Constraint("Symmetric", 19, 3, 55, 3, -1, 1),
    Sketcher.Constraint("Symmetric", 22, 3, 58, 3, -1, 1),
    Sketcher.Constraint("Symmetric", 25, 3, 61, 3, -1, 1),
    Sketcher.Constraint("Symmetric", 28, 3, 64, 3, -1, 1),
    Sketcher.Constraint("Symmetric", 31, 3, 67, 3, -1, 1),
    Sketcher.Constraint("Symmetric", 34, 3, 70, 3, -1, 1),
    Sketcher.Constraint("Symmetric", 2, 2, 38, 2, -1, 1),
    Sketcher.Constraint("Symmetric", 5, 2, 41, 2, -1, 1),
    Sketcher.Constraint("Symmetric", 8, 2, 44, 2, -1, 1),
    Sketcher.Constraint("Symmetric", 11, 2, 47, 2, -1, 1),
    Sketcher.Constraint("Symmetric", 14, 2, 50, 2, -1, 1),
    Sketcher.Constraint("Symmetric", 17, 2, 53, 2, -1, 1),
    Sketcher.Constraint("Symmetric", 20, 2, 56, 2, -1, 1),
    Sketcher.Constraint("Symmetric", 23, 2, 59, 2, -1, 1),
    Sketcher.Constraint("Symmetric", 26, 2, 62, 2, -1, 1),
    Sketcher.Constraint("Symmetric", 29, 2, 65, 2, -1, 1),
    Sketcher.Constraint("Symmetric", 32, 2, 68, 2, -1, 1),
    Sketcher.Constraint("Symmetric", 35, 2, 71, 2, -1, 1),
    Sketcher.Constraint("Symmetric", 7, 3, 13, 3, -2),
    Sketcher.Constraint("Symmetric", 4, 3, 16, 3, -2),
    Sketcher.Constraint("Symmetric", 1, 3, 19, 3, -2),
    Sketcher.Constraint("Symmetric", 34, 3, 58, 3, -2),
    Sketcher.Constraint("Symmetric", 31, 3, 61, 3, -2),
    Sketcher.Constraint("Symmetric", 9, 2, 10, 2, -2),
    Sketcher.Constraint("Symmetric", 5, 2, 14, 2, -2),
    Sketcher.Constraint("Symmetric", 2, 2, 17, 2, -2),
    Sketcher.Constraint("Symmetric", 35, 2, 56, 2, -2),
    Sketcher.Constraint("Symmetric", 32, 2, 59, 2, -2),
    Sketcher.Constraint("Symmetric", 29, 2, 62, 2, -2),
    Sketcher.Constraint("PointOnObject", 28, 3, -1),
    Sketcher.Constraint("Perpendicular", 0, 18),
    Sketcher.Constraint("Perpendicular", 3, 21),
    Sketcher.Constraint("Perpendicular", 5, 23),
    Sketcher.Constraint("Perpendicular", 6, 24),
    Sketcher.Constraint("Perpendicular", 8, 26),
    Sketcher.Constraint("Perpendicular", 9, 27),
    Sketcher.Constraint("Perpendicular", 12, 30),
    Sketcher.Constraint("Equal", 0, 2),
    Sketcher.Constraint("Equal", 2, 3),
    Sketcher.Constraint("Equal", 3, 5),
    Sketcher.Constraint("Equal", 5, 6),
    Sketcher.Constraint("Equal", 6, 8),
    Sketcher.Constraint("Equal", 8, 9),
    Sketcher.Constraint("Equal", 20, 21),
    Sketcher.Constraint("Equal", 21, 23),
    Sketcher.Constraint("Equal", 23, 24),
    Sketcher.Constraint("Equal", 24, 26),
    Sketcher.Constraint("Equal", 26, 27),
    Sketcher.Constraint("Radius", 1, Q("0.1 mm")),
    Sketcher.Constraint("DistanceY", -1, 1, 10, 3, Q("2.35 mm")),
    Sketcher.Constraint("DistanceX", -1, 1, 4, 3, Q("1.175 mm")),
    Sketcher.Constraint("DistanceX", -1, 1, 1, 3, Q("1.661701 mm")),
    Sketcher.Constraint("Distance", 0, Q("0.338139 mm")),
    Sketcher.Constraint("DistanceY", -1, 1, 4, 3, Q("2.03516 mm")),
    Sketcher.Constraint("DistanceX", -1, 1, 4, 2, Q("1.135078 mm")),
    Sketcher.Constraint("DistanceY", -1, 1, 6, 2, Q("2.306528 mm")),
])
pad6 = body.newObject("PartDesign::Pad", "Pad005")
pad6.Profile = sketch11
pad6.Length = 3.35

# Sketch on XY plane
sketch12 = body.newObject("Sketcher::SketchObject", "Sketch011")
sketch12.AttachmentSupport = (doc.getObject("XY_Plane"), [""])
sketch12.MapMode = "FlatFace"
sketch12.AttachmentOffset = App.Placement(V(0, 0, -9.9), App.Rotation())
sketch12.addGeometry(Part.Circle(V(0, 0, 0), V(0, 0, 1), 2.5), False)
sketch12.addConstraint([
    Sketcher.Constraint("Coincident", 0, 3, -1, 1),
    Sketcher.Constraint("Diameter", 0, Q("4.9 mm")),
])
doc.recompute()
hole = body.newObject("PartDesign::Hole", "Hole")
hole.Profile = sketch12
hole.ThreadType = "None"
hole.Diameter = 4.9
hole.DepthType = "Dimension"
hole.Depth = 8.7
hole.DrillPoint = "Flat"
hole.Reversed = True

# Sketch on XY plane
sketch13 = body.newObject("Sketcher::SketchObject", "Sketch012")
sketch13.AttachmentSupport = (doc.getObject("XY_Plane"), [""])
sketch13.MapMode = "FlatFace"
sketch13.AttachmentOffset = App.Placement(V(0, 0, -1.2), App.Rotation())
sketch13.addGeometry([
    Part.Circle(V(-6.6, 0, 0), V(0, 0, 1), 1),
    Part.Circle(V(20, 0, 0), V(0, 0, 1), 1),
], False)
sketch13.addConstraint([
    Sketcher.Constraint("Equal", 0, 1),
    Sketcher.Constraint("PointOnObject", 0, 3, -1),
    Sketcher.Constraint("PointOnObject", 1, 3, -1),
    Sketcher.Constraint("Diameter", 0, Q("2 mm")),
    Sketcher.Constraint("DistanceX", -1, 1, 1, 3, Q("20 mm")),
    Sketcher.Constraint("DistanceX", 0, 3, -1, 1, Q("6.6 mm")),
])
doc.recompute()
hole2 = body.newObject("PartDesign::Hole", "Hole001")
hole2.Profile = sketch13
hole2.ThreadType = "None"
hole2.Diameter = 2
hole2.DepthType = "Dimension"
hole2.Depth = 11.35
hole2.DrillPoint = "Flat"
hole2.Reversed = True

# Sketch on XY plane
sketch14 = body.newObject("Sketcher::SketchObject", "Sketch013")
sketch14.AttachmentSupport = (doc.getObject("XY_Plane"), [""])
sketch14.MapMode = "FlatFace"
sketch14.AttachmentOffset = App.Placement(V(0, 0, -1.2), App.Rotation())
sketch14.addGeometry([
    Part.Circle(V(-6.6, -3, 0), V(0, 0, 1), 0.8),
    Part.Circle(V(-6.6, 3, 0), V(0, 0, 1), 0.8),
    Part.Circle(V(20, -3, 0), V(0, 0, 1), 0.8),
    Part.Circle(V(20, 3, 0), V(0, 0, 1), 0.8),
], False)
sketch14.addConstraint([
    Sketcher.Constraint("Equal", 0, 1),
    Sketcher.Constraint("Equal", 1, 2),
    Sketcher.Constraint("Equal", 2, 3),
    Sketcher.Constraint("Symmetric", 0, 3, 1, 3, -1),
    Sketcher.Constraint("Symmetric", 2, 3, 3, 3, -1),
    Sketcher.Constraint("Horizontal", 0, 3, 2, 3),
    Sketcher.Constraint("Diameter", 0, Q("1.6 mm")),
    Sketcher.Constraint("DistanceY", 0, 3, -1, 1, Q("3 mm")),
    Sketcher.Constraint("DistanceX", -1, 1, 2, 3, Q("20 mm")),
    Sketcher.Constraint("DistanceX", 0, 3, -1, 1, Q("6.6 mm")),
])
doc.recompute()
hole3 = body.newObject("PartDesign::Hole", "Hole002")
hole3.Profile = sketch14
hole3.ThreadType = "None"
hole3.Diameter = 1.6
hole3.DepthType = "Dimension"
hole3.Depth = 11.35
hole3.DrillPoint = "Flat"
hole3.Reversed = True

# Sketch on XY plane
sketch15 = body.newObject("Sketcher::SketchObject", "Sketch014")
sketch15.AttachmentSupport = (doc.getObject("XY_Plane"), [""])
sketch15.MapMode = "FlatFace"
sketch15.AttachmentOffset = App.Placement(V(0, 0, 10.15), App.Rotation())
sketch15.addGeometry(Part.Circle(V(0, 0, 0), V(0, 0, 1), 1.1), False)
sketch15.addConstraint([
    Sketcher.Constraint("Coincident", 0, 3, -1, 1),
    Sketcher.Constraint("Diameter", 0, Q("2.15 mm")),
])
doc.recompute()
hole4 = body.newObject("PartDesign::Hole", "Hole003")
hole4.Profile = sketch15
hole4.ThreadType = "None"
hole4.Diameter = 2.15
hole4.DepthType = "Dimension"
hole4.Depth = 4.05
hole4.DrillPoint = "Angled"
hole4.DrillPointAngle = 118
doc.recompute()

fillet = body.newObject("PartDesign::Fillet", "Fillet")
fillet.Base = (hole4, edges_at(hole4, [
    (1.312, 1.71, 8.475),
    (0.825, 1.992, 8.475),
    (0.281, 2.138, 8.475),
    (-0.281, 2.138, 8.475),
    (-0.825, 1.992, 8.475),
    (-1.312, 1.71, 8.475),
    (-1.71, 1.312, 8.475),
    (-1.992, 0.825, 8.475),
    (-2.138, 0.281, 8.475),
    (-2.138, -0.281, 8.475),
    (-1.992, -0.825, 8.475),
    (-1.71, -1.312, 8.475),
    (-1.312, -1.71, 8.475),
    (-0.825, -1.992, 8.475),
    (-0.281, -2.138, 8.475),
    (0.281, -2.138, 8.475),
    (0.825, -1.992, 8.475),
    (1.312, -1.71, 8.475),
    (1.71, -1.312, 8.475),
    (1.992, -0.825, 8.475),
    (2.138, -0.281, 8.475),
    (2.138, 0.281, 8.475),
    (1.992, 0.825, 8.475),
    (1.71, 1.312, 8.475),
]))
fillet.Radius = 0.1
doc.recompute()

fillet2 = body.newObject("PartDesign::Fillet", "Fillet001")
fillet2.Base = (fillet, edges_at(fillet, [
    (-7.8, 4.5, -0.6),
    (-7.8, -4.5, -0.6),
    (21.2, 4.5, -0.6),
    (21.2, -4.5, -0.6),
]))
fillet2.Radius = 1
doc.recompute()

fillet3 = body.newObject("PartDesign::Fillet", "Fillet002")
fillet3.Base = (fillet2, edges_at(fillet2, [
    (-4.8, -4.5, 4),
    (6.47, 4.5, 7.4),
    (6.47, -4.5, 7.4),
    (-4.8, 4.5, -5.55),
    (-4.8, -4.5, -5.55),
    (-4.8, 4.5, 4),
]))
fillet3.Radius = 2

doc.recompute()
